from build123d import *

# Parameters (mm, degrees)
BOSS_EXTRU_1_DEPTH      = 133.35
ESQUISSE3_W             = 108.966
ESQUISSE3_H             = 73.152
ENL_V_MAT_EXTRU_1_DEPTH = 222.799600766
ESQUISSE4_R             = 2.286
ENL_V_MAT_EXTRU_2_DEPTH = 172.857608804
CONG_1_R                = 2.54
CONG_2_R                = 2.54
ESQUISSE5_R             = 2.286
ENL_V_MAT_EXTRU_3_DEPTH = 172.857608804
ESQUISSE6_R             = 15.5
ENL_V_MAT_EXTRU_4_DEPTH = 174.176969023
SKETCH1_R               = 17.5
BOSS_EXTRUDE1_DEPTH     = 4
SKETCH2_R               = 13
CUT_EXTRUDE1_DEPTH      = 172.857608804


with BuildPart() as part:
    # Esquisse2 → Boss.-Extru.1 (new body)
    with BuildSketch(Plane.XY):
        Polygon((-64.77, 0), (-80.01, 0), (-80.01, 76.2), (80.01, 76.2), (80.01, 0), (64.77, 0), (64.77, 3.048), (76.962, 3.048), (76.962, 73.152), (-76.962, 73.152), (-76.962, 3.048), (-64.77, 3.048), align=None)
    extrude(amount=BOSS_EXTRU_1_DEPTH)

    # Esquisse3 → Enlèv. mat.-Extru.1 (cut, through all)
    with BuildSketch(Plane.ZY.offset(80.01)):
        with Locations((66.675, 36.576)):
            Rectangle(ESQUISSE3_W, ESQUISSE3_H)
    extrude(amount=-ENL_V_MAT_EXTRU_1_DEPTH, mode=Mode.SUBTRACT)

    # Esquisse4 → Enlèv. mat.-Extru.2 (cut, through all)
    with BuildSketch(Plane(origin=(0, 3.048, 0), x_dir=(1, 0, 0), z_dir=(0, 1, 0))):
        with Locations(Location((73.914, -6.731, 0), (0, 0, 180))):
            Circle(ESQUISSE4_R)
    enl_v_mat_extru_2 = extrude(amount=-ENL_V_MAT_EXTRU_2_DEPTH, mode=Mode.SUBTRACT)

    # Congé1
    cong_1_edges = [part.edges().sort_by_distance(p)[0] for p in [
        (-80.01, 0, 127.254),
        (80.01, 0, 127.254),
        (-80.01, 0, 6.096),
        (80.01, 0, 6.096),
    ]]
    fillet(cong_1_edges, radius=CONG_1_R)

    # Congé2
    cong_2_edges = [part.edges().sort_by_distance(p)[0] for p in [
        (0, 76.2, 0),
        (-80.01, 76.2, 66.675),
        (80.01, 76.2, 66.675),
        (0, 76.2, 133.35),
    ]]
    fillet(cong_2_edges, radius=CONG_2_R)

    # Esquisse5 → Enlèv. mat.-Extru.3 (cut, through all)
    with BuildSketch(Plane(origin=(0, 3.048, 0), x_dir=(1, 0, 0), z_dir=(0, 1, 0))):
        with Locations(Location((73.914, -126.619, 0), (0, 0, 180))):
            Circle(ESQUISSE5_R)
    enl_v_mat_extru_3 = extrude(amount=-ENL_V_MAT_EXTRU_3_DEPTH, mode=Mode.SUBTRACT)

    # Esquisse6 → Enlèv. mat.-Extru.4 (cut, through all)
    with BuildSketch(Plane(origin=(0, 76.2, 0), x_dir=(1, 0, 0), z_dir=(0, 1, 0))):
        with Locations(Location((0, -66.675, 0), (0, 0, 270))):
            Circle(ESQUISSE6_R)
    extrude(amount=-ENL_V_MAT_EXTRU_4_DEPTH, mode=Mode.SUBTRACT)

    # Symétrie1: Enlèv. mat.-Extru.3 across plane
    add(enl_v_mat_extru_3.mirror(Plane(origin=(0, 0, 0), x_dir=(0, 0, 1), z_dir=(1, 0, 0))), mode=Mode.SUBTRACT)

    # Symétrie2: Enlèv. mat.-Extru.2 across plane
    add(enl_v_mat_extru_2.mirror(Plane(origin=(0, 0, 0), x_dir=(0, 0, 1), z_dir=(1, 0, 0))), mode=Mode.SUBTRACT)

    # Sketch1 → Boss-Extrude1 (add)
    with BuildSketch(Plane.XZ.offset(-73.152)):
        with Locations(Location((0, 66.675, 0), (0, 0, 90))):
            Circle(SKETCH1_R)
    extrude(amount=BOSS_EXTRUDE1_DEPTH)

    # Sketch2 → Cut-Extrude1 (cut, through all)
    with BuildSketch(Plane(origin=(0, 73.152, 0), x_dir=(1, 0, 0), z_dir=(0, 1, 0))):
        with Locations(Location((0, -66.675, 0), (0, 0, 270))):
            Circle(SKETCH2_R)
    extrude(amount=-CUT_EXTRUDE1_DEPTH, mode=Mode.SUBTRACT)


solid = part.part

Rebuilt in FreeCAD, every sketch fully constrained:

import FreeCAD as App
import Part
import Sketcher
Q = App.Units.Quantity


def edges_at(feature, points):
    """Names of the edges that pass closest to the given points."""
    edges = feature.Shape.Edges
    near = lambda p: min(range(len(edges)), key=lambda i: edges[i].distToShape(Part.Vertex(*p))[0])
    return sorted({f"Edge{near(p) + 1}" for p in points})

doc = App.newDocument("Part")
body = doc.addObject("PartDesign::Body", "Body")

# Sketch on XY plane
sketch1 = doc.addObject("Sketcher::SketchObject", "Sketch")
body.addObject(sketch1)
sketch1.AttachmentSupport = (doc.XY_Plane, [""])
sketch1.MapMode = "FlatFace"
sketch1.addGeometry([
    Part.LineSegment(App.Vector(-80, 0, 0), App.Vector(-64.8, 0, 0)),  # 0
    Part.LineSegment(App.Vector(-64.8, 0, 0), App.Vector(-64.8, 3, 0)),  # 1
    Part.LineSegment(App.Vector(-64.8, 3, 0), App.Vector(-77, 3, 0)),  # 2
    Part.LineSegment(App.Vector(-77, 3, 0), App.Vector(-77, 73.2, 0)),  # 3
    Part.LineSegment(App.Vector(-77, 73.2, 0), App.Vector(77, 73.2, 0)),  # 4
    Part.LineSegment(App.Vector(77, 73.2, 0), App.Vector(77, 3, 0)),  # 5
    Part.LineSegment(App.Vector(77, 3, 0), App.Vector(64.8, 3, 0)),  # 6
    Part.LineSegment(App.Vector(64.8, 3, 0), App.Vector(64.8, 0, 0)),  # 7
    Part.LineSegment(App.Vector(64.8, 0, 0), App.Vector(80, 0, 0)),  # 8
    Part.LineSegment(App.Vector(80, 0, 0), App.Vector(80, 76.2, 0)),  # 9
    Part.LineSegment(App.Vector(80, 76.2, 0), App.Vector(-80, 76.2, 0)),  # 10
    Part.LineSegment(App.Vector(-80, 76.2, 0), App.Vector(-80, 0, 0)),  # 11
], False)
sketch1.addConstraint([
    Sketcher.Constraint("Coincident", 0, 2, 1, 1),
    Sketcher.Constraint("Coincident", 1, 2, 2, 1),
    Sketcher.Constraint("Coincident", 2, 2, 3, 1),
    Sketcher.Constraint("Coincident", 3, 2, 4, 1),
    Sketcher.Constraint("Coincident", 4, 2, 5, 1),
    Sketcher.Constraint("Coincident", 5, 2, 6, 1),
    Sketcher.Constraint("Coincident", 6, 2, 7, 1),
    Sketcher.Constraint("Coincident", 7, 2, 8, 1),
    Sketcher.Constraint("Coincident", 8, 2, 9, 1),
    Sketcher.Constraint("Coincident", 9, 2, 10, 1),
    Sketcher.Constraint("Coincident", 10, 2, 11, 1),
    Sketcher.Constraint("Coincident", 11, 2, 0, 1),
    Sketcher.Constraint("Horizontal", 0),
    Sketcher.Constraint("Vertical", 1),
    Sketcher.Constraint("Horizontal", 2),
    Sketcher.Constraint("Vertical", 3),
    Sketcher.Constraint("Horizontal", 4),
    Sketcher.Constraint("Vertical", 5),
    Sketcher.Constraint("Horizontal", 6),
    Sketcher.Constraint("Vertical", 7),
    Sketcher.Constraint("Horizontal", 8),
    Sketcher.Constraint("Vertical", 9),
    Sketcher.Constraint("Horizontal", 10),
    Sketcher.Constraint("Vertical", 11),
    Sketcher.Constraint("Symmetric", 0, 2, 7, 2, -1, 1),
    Sketcher.Constraint("Symmetric", 2, 2, 5, 2, -2),
    Sketcher.Constraint("Symmetric", 8, 2, 11, 2, -2),
    Sketcher.Constraint("DistanceY", 9, 1, 9, 2, Q("3 in")),
    Sketcher.Constraint("DistanceX", 0, 1, 0, 2, Q("0.6 in")),
    Sketcher.Constraint("DistanceX", 10, 2, 10, 1, Q("6.3 in")),
    Sketcher.Constraint("DistanceX", 2, 2, 2, 1, Q("0.48 in")),
    Sketcher.Constraint("DistanceY", 1, 1, 1, 2, Q("0.12 in")),
    Sketcher.Constraint("DistanceY", 3, 1, 3, 2, Q("2.76 in")),
])
pad1 = doc.addObject("PartDesign::Pad", "Pad")
body.addObject(pad1)
pad1.Profile = sketch1
pad1.Length = Q("5.25 in")

# Sketch on YZ plane
sketch2 = doc.addObject("Sketcher::SketchObject", "Sketch001")
body.addObject(sketch2)
sketch2.AttachmentSupport = (doc.YZ_Plane, [""])
sketch2.MapMode = "FlatFace"
sketch2.AttachmentOffset = App.Placement(App.Vector(0, 0, -3.15 * 25.4), App.Rotation())
sketch2.addGeometry([
    Part.LineSegment(App.Vector(73, 12, 0), App.Vector(0, 12, 0)),
    Part.LineSegment(App.Vector(0, 12, 0), App.Vector(0, 121, 0)),
    Part.LineSegment(App.Vector(0, 121, 0), App.Vector(73, 121, 0)),
    Part.LineSegment(App.Vector(73, 121, 0), App.Vector(73, 12, 0)),
], False)
sketch2.addConstraint([
    Sketcher.Constraint("Coincident", 0, 2, 1, 1),
    Sketcher.Constraint("Coincident", 1, 2, 2, 1),
    Sketcher.Constraint("Coincident", 2, 2, 3, 1),
    Sketcher.Constraint("Coincident", 3, 2, 0, 1),
    Sketcher.Constraint("Horizontal", 0),
    Sketcher.Constraint("Vertical", 1),
    Sketcher.Constraint("Horizontal", 2),
    Sketcher.Constraint("Vertical", 3),
    Sketcher.Constraint("PointOnObject", 0, 2, -2),
    Sketcher.Constraint("DistanceX", 0, 2, 0, 1, Q("2.88 in")),
    Sketcher.Constraint("DistanceY", 1, 1, 1, 2, Q("4.29 in")),
    Sketcher.Constraint("DistanceY", -1, 1, 0, 2, Q("0.48 in")),
])
pocket1 = doc.addObject("PartDesign::Pocket", "Pocket")
body.addObject(pocket1)
pocket1.Profile = sketch2
pocket1.Type = "ThroughAll"
pocket1.Reversed = True

# Sketch on XZ plane
sketch3 = doc.addObject("Sketcher::SketchObject", "Sketch002")
body.addObject(sketch3)
sketch3.AttachmentSupport = (doc.XZ_Plane, [""])
sketch3.MapMode = "FlatFace"
sketch3.AttachmentOffset = App.Placement(App.Vector(0, 0, -0.12 * 25.4), App.Rotation())
sketch3.addGeometry(Part.Circle(App.Vector(73.9, 6.7, 0), App.Vector(0, 0, 1), 2.3), False)
sketch3.addConstraint([
    Sketcher.Constraint("Diameter", 0, Q("0.18 in")),
    Sketcher.Constraint("DistanceX", -1, 1, 0, 3, Q("2.91 in")),
    Sketcher.Constraint("DistanceY", -1, 1, 0, 3, Q("0.265 in")),
])
pocket2 = doc.addObject("PartDesign::Pocket", "Pocket001")
body.addObject(pocket2)
pocket2.Profile = sketch3
pocket2.Type = "ThroughAll"
pocket2.Reversed = True
doc.recompute()

fillet = doc.addObject("PartDesign::Fillet", "Fillet")
body.addObject(fillet)
fillet.Base = (pocket2, edges_at(pocket2, [
    (-80.01, 0, 127.254),
    (80.01, 0, 127.254),
    (-80.01, 0, 6.096),
    (80.01, 0, 6.096),
]))
fillet.Radius = Q("0.1 in")
doc.recompute()

fillet2 = doc.addObject("PartDesign::Fillet", "Fillet001")
body.addObject(fillet2)
fillet2.Base = (fillet, edges_at(fillet, [
    (0, 76.2, 0),
    (-80.01, 76.2, 66.675),
    (80.01, 76.2, 66.675),
    (0, 76.2, 133.35),
]))
fillet2.Radius = Q("0.1 in")

# Sketch on XZ plane
sketch4 = doc.addObject("Sketcher::SketchObject", "Sketch003")
body.addObject(sketch4)
sketch4.AttachmentSupport = (doc.XZ_Plane, [""])
sketch4.MapMode = "FlatFace"
sketch4.AttachmentOffset = App.Placement(App.Vector(0, 0, -0.12 * 25.4), App.Rotation())
sketch4.addGeometry(Part.Circle(App.Vector(73.9, 126.6, 0), App.Vector(0, 0, 1), 2.3), False)
sketch4.addConstraint([
    Sketcher.Constraint("Diameter", 0, Q("0.18 in")),
    Sketcher.Constraint("DistanceX", -1, 1, 0, 3, Q("2.91 in")),
    Sketcher.Constraint("DistanceY", -1, 1, 0, 3, Q("4.985 in")),
])
pocket3 = doc.addObject("PartDesign::Pocket", "Pocket002")
body.addObject(pocket3)
pocket3.Profile = sketch4
pocket3.Type = "ThroughAll"
pocket3.Reversed = True

# Sketch on XZ plane
sketch5 = doc.addObject("Sketcher::SketchObject", "Sketch004")
body.addObject(sketch5)
sketch5.AttachmentSupport = (doc.XZ_Plane, [""])
sketch5.MapMode = "FlatFace"
sketch5.AttachmentOffset = App.Placement(App.Vector(0, 0, -3 * 25.4), App.Rotation())
sketch5.addGeometry(Part.Circle(App.Vector(0, 67, 0), App.Vector(0, 0, 1), 16), False)
sketch5.addConstraint([
    Sketcher.Constraint("PointOnObject", 0, 3, -2),
    Sketcher.Constraint("Diameter", 0, 31.0),
    Sketcher.Constraint("DistanceY", -1, 1, 0, 3, Q("2.625 in")),
])
pocket4 = doc.addObject("PartDesign::Pocket", "Pocket003")
body.addObject(pocket4)
pocket4.Profile = sketch5
pocket4.Type = "ThroughAll"
pocket4.Reversed = True
doc.recompute()

mirrored = doc.addObject("PartDesign::Mirrored", "Mirrored")
body.addObject(mirrored)
mirrored.Originals = [pocket3]
mirrored.MirrorPlane = (doc.YZ_Plane, [""])
body.Tip = mirrored
doc.recompute()

mirrored2 = doc.addObject("PartDesign::Mirrored", "Mirrored001")
body.addObject(mirrored2)
mirrored2.Originals = [pocket2]
mirrored2.MirrorPlane = (doc.YZ_Plane, [""])
body.Tip = mirrored2

# Sketch on XZ plane
sketch6 = doc.addObject("Sketcher::SketchObject", "Sketch005")
body.addObject(sketch6)
sketch6.AttachmentSupport = (doc.XZ_Plane, [""])
sketch6.MapMode = "FlatFace"
sketch6.AttachmentOffset = App.Placement(App.Vector(0, 0, -2.88 * 25.4), App.Rotation())
sketch6.addGeometry(Part.Circle(App.Vector(0, 67, 0), App.Vector(0, 0, 1), 18), False)
sketch6.addConstraint([
    Sketcher.Constraint("PointOnObject", 0, 3, -2),
    Sketcher.Constraint("Diameter", 0, 35.0),
    Sketcher.Constraint("DistanceY", -1, 1, 0, 3, Q("2.625 in")),
])
pad2 = doc.addObject("PartDesign::Pad", "Pad001")
body.addObject(pad2)
pad2.Profile = sketch6
pad2.Length = 4

# Sketch on XZ plane
sketch7 = doc.addObject("Sketcher::SketchObject", "Sketch006")
body.addObject(sketch7)
sketch7.AttachmentSupport = (doc.XZ_Plane, [""])
sketch7.MapMode = "FlatFace"
sketch7.AttachmentOffset = App.Placement(App.Vector(0, 0, -2.88 * 25.4), App.Rotation())
sketch7.addGeometry(Part.Circle(App.Vector(0, 67, 0), App.Vector(0, 0, 1), 13), False)
sketch7.addConstraint([
    Sketcher.Constraint("PointOnObject", 0, 3, -2),
    Sketcher.Constraint("Diameter", 0, 26.0),
    Sketcher.Constraint("DistanceY", -1, 1, 0, 3, Q("2.625 in")),
])
pocket5 = doc.addObject("PartDesign::Pocket", "Pocket004")
body.addObject(pocket5)
pocket5.Profile = sketch7
pocket5.Type = "ThroughAll"
pocket5.Reversed = True

doc.recompute()
